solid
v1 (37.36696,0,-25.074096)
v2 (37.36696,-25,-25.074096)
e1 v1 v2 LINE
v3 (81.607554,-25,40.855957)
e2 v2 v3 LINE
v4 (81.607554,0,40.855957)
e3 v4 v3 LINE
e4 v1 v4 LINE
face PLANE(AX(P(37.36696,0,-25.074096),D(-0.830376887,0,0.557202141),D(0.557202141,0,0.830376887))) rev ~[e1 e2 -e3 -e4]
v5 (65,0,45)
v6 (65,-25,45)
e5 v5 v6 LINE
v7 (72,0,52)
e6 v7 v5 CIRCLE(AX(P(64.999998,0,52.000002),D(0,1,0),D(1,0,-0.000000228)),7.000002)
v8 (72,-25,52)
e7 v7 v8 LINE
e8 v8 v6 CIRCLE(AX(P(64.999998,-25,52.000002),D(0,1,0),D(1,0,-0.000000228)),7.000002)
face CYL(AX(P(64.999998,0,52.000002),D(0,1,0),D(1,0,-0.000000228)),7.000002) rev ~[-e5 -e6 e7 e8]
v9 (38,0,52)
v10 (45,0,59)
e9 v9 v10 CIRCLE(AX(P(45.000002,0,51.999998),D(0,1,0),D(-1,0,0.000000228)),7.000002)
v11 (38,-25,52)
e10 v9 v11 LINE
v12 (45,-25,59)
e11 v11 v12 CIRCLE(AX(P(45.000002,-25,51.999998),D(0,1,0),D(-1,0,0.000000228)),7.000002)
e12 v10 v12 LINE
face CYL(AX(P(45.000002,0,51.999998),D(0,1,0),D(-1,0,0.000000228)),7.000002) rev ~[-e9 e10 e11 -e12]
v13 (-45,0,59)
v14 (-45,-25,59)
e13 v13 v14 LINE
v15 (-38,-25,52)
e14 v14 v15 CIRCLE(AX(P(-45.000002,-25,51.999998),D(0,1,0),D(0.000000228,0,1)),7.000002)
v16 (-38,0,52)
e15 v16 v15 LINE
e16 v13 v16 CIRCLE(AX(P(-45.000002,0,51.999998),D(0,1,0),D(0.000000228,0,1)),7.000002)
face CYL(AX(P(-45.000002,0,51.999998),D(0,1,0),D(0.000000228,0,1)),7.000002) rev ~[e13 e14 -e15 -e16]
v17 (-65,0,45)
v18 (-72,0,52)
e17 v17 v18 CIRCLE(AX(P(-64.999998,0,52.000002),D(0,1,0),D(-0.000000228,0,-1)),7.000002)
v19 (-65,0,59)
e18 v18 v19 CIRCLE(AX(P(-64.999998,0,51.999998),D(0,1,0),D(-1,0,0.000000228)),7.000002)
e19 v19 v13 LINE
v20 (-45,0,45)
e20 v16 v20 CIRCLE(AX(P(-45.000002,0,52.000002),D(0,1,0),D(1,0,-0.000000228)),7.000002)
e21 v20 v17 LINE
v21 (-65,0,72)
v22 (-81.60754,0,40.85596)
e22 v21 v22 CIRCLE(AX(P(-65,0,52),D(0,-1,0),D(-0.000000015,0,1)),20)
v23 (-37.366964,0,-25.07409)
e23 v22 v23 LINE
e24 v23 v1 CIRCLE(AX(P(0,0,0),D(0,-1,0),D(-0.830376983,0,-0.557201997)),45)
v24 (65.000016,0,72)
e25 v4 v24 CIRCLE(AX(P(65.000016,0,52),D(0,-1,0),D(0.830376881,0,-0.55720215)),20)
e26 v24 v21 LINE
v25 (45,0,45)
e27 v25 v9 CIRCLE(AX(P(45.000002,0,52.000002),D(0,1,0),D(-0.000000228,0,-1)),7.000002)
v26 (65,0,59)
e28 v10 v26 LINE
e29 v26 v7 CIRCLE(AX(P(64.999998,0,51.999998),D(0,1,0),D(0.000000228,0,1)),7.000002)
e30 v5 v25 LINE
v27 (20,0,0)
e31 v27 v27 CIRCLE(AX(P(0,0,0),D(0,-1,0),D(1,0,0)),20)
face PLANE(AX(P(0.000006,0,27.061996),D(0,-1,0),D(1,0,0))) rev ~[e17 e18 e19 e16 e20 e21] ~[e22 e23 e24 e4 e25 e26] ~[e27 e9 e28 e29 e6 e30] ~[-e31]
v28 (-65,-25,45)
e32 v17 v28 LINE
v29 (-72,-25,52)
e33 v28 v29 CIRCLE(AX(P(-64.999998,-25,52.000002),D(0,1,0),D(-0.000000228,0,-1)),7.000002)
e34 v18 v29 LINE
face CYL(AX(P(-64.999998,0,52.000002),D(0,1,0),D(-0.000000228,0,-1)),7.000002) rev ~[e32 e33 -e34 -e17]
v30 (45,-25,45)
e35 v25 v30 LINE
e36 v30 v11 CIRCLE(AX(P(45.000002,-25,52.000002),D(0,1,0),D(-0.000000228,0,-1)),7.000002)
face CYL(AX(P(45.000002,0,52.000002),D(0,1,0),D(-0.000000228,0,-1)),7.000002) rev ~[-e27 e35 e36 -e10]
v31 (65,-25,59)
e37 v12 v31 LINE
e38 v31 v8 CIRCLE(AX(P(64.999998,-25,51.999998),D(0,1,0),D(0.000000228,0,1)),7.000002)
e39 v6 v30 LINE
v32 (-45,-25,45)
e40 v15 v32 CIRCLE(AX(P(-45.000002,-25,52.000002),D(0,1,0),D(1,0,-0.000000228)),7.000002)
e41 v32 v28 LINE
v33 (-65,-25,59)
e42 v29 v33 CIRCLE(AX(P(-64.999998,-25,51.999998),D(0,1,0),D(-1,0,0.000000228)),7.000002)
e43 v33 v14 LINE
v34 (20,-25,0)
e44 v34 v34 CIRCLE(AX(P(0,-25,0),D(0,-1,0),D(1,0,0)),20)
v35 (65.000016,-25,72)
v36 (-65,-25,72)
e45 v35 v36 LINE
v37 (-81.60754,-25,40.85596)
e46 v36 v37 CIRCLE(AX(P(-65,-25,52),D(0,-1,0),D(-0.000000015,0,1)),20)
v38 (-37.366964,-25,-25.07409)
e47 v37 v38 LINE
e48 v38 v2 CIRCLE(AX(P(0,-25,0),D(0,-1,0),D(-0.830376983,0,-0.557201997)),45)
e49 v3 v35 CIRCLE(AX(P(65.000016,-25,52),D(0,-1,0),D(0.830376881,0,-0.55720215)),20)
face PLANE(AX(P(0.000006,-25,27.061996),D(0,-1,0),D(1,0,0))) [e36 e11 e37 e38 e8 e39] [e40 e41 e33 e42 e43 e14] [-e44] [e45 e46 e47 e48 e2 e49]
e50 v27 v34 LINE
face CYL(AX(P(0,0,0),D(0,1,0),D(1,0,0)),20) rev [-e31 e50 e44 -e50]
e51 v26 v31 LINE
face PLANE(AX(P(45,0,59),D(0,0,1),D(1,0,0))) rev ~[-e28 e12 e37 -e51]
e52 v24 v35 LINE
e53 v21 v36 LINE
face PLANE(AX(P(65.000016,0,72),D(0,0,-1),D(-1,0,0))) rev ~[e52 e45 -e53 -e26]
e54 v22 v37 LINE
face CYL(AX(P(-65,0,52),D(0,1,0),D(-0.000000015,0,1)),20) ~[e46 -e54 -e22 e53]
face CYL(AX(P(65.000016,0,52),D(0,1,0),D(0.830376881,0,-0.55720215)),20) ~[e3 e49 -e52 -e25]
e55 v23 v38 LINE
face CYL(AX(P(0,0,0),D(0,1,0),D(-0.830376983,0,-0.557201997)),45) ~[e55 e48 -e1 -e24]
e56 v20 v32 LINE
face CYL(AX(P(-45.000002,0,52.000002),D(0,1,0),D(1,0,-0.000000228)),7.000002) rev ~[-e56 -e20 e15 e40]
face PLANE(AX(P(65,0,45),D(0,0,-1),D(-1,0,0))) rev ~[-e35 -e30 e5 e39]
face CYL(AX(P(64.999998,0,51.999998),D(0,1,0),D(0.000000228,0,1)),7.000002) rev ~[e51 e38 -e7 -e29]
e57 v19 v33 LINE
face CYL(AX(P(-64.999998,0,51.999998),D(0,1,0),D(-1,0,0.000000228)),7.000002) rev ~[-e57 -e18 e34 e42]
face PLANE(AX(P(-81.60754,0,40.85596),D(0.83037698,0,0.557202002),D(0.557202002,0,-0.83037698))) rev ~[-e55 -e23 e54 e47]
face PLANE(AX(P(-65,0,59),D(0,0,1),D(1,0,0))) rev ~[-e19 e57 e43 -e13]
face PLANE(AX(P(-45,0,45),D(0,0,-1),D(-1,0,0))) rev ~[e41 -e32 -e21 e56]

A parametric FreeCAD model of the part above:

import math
import FreeCAD as App
import Part
import Sketcher

V = App.Vector
Q = App.Units.Quantity

doc = App.newDocument("Part")
body = doc.addObject("PartDesign::Body", "Body")

sketch1 = body.newObject("Sketcher::SketchObject", "Sketch")
sketch1.AttachmentSupport = (doc.getObject("XZ_Plane"), [""])
sketch1.MapMode = "FlatFace"
sketch1.addGeometry(Part.LineSegment(V(-81.60754, 40.85596, 0), V(-37.366964, -25.07409, 0)), False)
sketch1.addGeometry(Part.ArcOfCircle(Part.Circle(V(0, 0, 0), V(0, 0, 1), 45), math.radians(-146.137483), math.radians(-33.862526)), False)
sketch1.addGeometry(Part.LineSegment(V(37.36696, -25.074096, 0), V(81.607554, 40.855957, 0)), False)
sketch1.addGeometry(Part.ArcOfCircle(Part.Circle(V(65.000016, 52, 0), V(0, 0, 1), 20), math.radians(-33.862528), math.radians(90.000001)), False)
sketch1.addGeometry(Part.LineSegment(V(65.000016, 72, 0), V(-65, 72, 0)), False)
sketch1.addGeometry(Part.ArcOfCircle(Part.Circle(V(-65, 52, 0), V(0, 0, 1), 20), math.radians(90.000001), math.radians(213.862515)), False)
sketch1.addGeometry(Part.Circle(V(0, 0, 0), V(0, 0, 1), 20), False)
sketch1.addGeometry(Part.ArcOfCircle(Part.Circle(V(-64.999998, 52.000002, 0), V(0, 0, 1), 7.000002), math.radians(-179.999987), math.radians(-90.000013)), False)
sketch1.addGeometry(Part.ArcOfCircle(Part.Circle(V(-64.999998, 51.999998, 0), V(0, 0, 1), 7.000002), math.radians(90.000013), math.radians(179.999987)), False)
sketch1.addGeometry(Part.LineSegment(V(-65, 59, 0), V(-45, 59, 0)), False)
sketch1.addGeometry(Part.ArcOfCircle(Part.Circle(V(-45.000002, 51.999998, 0), V(0, 0, 1), 7.000002), math.radians(0.000013), math.radians(89.999987)), False)
sketch1.addGeometry(Part.ArcOfCircle(Part.Circle(V(-45.000002, 52.000002, 0), V(0, 0, 1), 7.000002), math.radians(-89.999987), math.radians(-0.000013)), False)
sketch1.addGeometry(Part.LineSegment(V(-45, 45, 0), V(-65, 45, 0)), False)
sketch1.addGeometry(Part.ArcOfCircle(Part.Circle(V(64.999998, 52.000002, 0), V(0, 0, 1), 7.000002), math.radians(-89.999987), math.radians(-0.000013)), False)
sketch1.addGeometry(Part.LineSegment(V(65, 45, 0), V(45, 45, 0)), False)
sketch1.addGeometry(Part.ArcOfCircle(Part.Circle(V(45.000002, 52.000002, 0), V(0, 0, 1), 7.000002), math.radians(-179.999987), math.radians(-90.000013)), False)
sketch1.addGeometry(Part.ArcOfCircle(Part.Circle(V(45.000002, 51.999998, 0), V(0, 0, 1), 7.000002), math.radians(90.000013), math.radians(179.999987)), False)
sketch1.addGeometry(Part.LineSegment(V(45, 59, 0), V(65, 59, 0)), False)
sketch1.addGeometry(Part.ArcOfCircle(Part.Circle(V(64.999998, 51.999998, 0), V(0, 0, 1), 7.000002), math.radians(0.000013), math.radians(89.999987)), False)
sketch1.addConstraint(Sketcher.Constraint("Tangent", 0, 2, 1, 1))
sketch1.addConstraint(Sketcher.Constraint("Tangent", 1, 2, 2, 1))
sketch1.addConstraint(Sketcher.Constraint("Tangent", 2, 2, 3, 1))
sketch1.addConstraint(Sketcher.Constraint("Tangent", 3, 2, 4, 1))
sketch1.addConstraint(Sketcher.Constraint("Tangent", 4, 2, 5, 1))
sketch1.addConstraint(Sketcher.Constraint("Tangent", 5, 2, 0, 1))
sketch1.addConstraint(Sketcher.Constraint("Tangent", 7, 1, 8, 2))
sketch1.addConstraint(Sketcher.Constraint("Tangent", 8, 1, 9, 1))
sketch1.addConstraint(Sketcher.Constraint("Tangent", 9, 2, 10, 2))
sketch1.addConstraint(Sketcher.Constraint("Tangent", 10, 1, 11, 2))
sketch1.addConstraint(Sketcher.Constraint("Tangent", 11, 1, 12, 1))
sketch1.addConstraint(Sketcher.Constraint("Tangent", 12, 2, 7, 2))
sketch1.addConstraint(Sketcher.Constraint("Tangent", 13, 1, 14, 1))
sketch1.addConstraint(Sketcher.Constraint("Tangent", 14, 2, 15, 2))
sketch1.addConstraint(Sketcher.Constraint("Tangent", 15, 1, 16, 2))
sketch1.addConstraint(Sketcher.Constraint("Tangent", 16, 1, 17, 1))
sketch1.addConstraint(Sketcher.Constraint("Tangent", 17, 2, 18, 2))
sketch1.addConstraint(Sketcher.Constraint("Tangent", 18, 1, 13, 2))
sketch1.addConstraint(Sketcher.Constraint("Horizontal", 4))
sketch1.addConstraint(Sketcher.Constraint("Horizontal", 9))
sketch1.addConstraint(Sketcher.Constraint("Horizontal", 12))
sketch1.addConstraint(Sketcher.Constraint("Horizontal", 14))
sketch1.addConstraint(Sketcher.Constraint("Horizontal", 17))
sketch1.addConstraint(Sketcher.Constraint("Coincident", 1, 3, -1, 1))
sketch1.addConstraint(Sketcher.Constraint("Coincident", 6, 3, -1, 1))
sketch1.addConstraint(Sketcher.Constraint("Coincident", 7, 3, 5, 3))
sketch1.addConstraint(Sketcher.Constraint("Equal", 3, 5))
sketch1.addConstraint(Sketcher.Constraint("Equal", 5, 6))
sketch1.addConstraint(Sketcher.Constraint("Equal", 7, 8))
sketch1.addConstraint(Sketcher.Constraint("Equal", 8, 10))
sketch1.addConstraint(Sketcher.Constraint("Equal", 11, 13))
sketch1.addConstraint(Sketcher.Constraint("Equal", 13, 15))
sketch1.addConstraint(Sketcher.Constraint("Equal", 15, 16))
sketch1.addConstraint(Sketcher.Constraint("Symmetric", 5, 3, 13, 3, -2))
sketch1.addConstraint(Sketcher.Constraint("Symmetric", 10, 1, 15, 1, -2))
sketch1.addConstraint(Sketcher.Constraint("Horizontal", 18, 3, 7, 1))
sketch1.addConstraint(Sketcher.Constraint("Horizontal", 7, 1, 10, 1))
sketch1.addConstraint(Sketcher.Constraint("Horizontal", 15, 1, 18, 1))
sketch1.addConstraint(Sketcher.Constraint("Diameter", 6, Q("40 mm")))
sketch1.addConstraint(Sketcher.Constraint("Radius", 1, Q("45 mm")))
sketch1.addConstraint(Sketcher.Constraint("Radius", 7, Q("7.000002 mm")))
sketch1.addConstraint(Sketcher.Constraint("DistanceX", 9, 1, 9, 2, Q("20 mm")))
sketch1.addConstraint(Sketcher.Constraint("DistanceY", -1, 1, 3, 3, Q("52 mm")))
sketch1.addConstraint(Sketcher.Constraint("DistanceX", 5, 3, -1, 1, Q("65 mm")))
sketch1.addConstraint(Sketcher.Constraint("DistanceX", 4, 2, 4, 1, Q("130.000016 mm")))
pad1 = body.newObject("PartDesign::Pad", "Pad")
pad1.Profile = sketch1
pad1.Length = 25

doc.recompute()
